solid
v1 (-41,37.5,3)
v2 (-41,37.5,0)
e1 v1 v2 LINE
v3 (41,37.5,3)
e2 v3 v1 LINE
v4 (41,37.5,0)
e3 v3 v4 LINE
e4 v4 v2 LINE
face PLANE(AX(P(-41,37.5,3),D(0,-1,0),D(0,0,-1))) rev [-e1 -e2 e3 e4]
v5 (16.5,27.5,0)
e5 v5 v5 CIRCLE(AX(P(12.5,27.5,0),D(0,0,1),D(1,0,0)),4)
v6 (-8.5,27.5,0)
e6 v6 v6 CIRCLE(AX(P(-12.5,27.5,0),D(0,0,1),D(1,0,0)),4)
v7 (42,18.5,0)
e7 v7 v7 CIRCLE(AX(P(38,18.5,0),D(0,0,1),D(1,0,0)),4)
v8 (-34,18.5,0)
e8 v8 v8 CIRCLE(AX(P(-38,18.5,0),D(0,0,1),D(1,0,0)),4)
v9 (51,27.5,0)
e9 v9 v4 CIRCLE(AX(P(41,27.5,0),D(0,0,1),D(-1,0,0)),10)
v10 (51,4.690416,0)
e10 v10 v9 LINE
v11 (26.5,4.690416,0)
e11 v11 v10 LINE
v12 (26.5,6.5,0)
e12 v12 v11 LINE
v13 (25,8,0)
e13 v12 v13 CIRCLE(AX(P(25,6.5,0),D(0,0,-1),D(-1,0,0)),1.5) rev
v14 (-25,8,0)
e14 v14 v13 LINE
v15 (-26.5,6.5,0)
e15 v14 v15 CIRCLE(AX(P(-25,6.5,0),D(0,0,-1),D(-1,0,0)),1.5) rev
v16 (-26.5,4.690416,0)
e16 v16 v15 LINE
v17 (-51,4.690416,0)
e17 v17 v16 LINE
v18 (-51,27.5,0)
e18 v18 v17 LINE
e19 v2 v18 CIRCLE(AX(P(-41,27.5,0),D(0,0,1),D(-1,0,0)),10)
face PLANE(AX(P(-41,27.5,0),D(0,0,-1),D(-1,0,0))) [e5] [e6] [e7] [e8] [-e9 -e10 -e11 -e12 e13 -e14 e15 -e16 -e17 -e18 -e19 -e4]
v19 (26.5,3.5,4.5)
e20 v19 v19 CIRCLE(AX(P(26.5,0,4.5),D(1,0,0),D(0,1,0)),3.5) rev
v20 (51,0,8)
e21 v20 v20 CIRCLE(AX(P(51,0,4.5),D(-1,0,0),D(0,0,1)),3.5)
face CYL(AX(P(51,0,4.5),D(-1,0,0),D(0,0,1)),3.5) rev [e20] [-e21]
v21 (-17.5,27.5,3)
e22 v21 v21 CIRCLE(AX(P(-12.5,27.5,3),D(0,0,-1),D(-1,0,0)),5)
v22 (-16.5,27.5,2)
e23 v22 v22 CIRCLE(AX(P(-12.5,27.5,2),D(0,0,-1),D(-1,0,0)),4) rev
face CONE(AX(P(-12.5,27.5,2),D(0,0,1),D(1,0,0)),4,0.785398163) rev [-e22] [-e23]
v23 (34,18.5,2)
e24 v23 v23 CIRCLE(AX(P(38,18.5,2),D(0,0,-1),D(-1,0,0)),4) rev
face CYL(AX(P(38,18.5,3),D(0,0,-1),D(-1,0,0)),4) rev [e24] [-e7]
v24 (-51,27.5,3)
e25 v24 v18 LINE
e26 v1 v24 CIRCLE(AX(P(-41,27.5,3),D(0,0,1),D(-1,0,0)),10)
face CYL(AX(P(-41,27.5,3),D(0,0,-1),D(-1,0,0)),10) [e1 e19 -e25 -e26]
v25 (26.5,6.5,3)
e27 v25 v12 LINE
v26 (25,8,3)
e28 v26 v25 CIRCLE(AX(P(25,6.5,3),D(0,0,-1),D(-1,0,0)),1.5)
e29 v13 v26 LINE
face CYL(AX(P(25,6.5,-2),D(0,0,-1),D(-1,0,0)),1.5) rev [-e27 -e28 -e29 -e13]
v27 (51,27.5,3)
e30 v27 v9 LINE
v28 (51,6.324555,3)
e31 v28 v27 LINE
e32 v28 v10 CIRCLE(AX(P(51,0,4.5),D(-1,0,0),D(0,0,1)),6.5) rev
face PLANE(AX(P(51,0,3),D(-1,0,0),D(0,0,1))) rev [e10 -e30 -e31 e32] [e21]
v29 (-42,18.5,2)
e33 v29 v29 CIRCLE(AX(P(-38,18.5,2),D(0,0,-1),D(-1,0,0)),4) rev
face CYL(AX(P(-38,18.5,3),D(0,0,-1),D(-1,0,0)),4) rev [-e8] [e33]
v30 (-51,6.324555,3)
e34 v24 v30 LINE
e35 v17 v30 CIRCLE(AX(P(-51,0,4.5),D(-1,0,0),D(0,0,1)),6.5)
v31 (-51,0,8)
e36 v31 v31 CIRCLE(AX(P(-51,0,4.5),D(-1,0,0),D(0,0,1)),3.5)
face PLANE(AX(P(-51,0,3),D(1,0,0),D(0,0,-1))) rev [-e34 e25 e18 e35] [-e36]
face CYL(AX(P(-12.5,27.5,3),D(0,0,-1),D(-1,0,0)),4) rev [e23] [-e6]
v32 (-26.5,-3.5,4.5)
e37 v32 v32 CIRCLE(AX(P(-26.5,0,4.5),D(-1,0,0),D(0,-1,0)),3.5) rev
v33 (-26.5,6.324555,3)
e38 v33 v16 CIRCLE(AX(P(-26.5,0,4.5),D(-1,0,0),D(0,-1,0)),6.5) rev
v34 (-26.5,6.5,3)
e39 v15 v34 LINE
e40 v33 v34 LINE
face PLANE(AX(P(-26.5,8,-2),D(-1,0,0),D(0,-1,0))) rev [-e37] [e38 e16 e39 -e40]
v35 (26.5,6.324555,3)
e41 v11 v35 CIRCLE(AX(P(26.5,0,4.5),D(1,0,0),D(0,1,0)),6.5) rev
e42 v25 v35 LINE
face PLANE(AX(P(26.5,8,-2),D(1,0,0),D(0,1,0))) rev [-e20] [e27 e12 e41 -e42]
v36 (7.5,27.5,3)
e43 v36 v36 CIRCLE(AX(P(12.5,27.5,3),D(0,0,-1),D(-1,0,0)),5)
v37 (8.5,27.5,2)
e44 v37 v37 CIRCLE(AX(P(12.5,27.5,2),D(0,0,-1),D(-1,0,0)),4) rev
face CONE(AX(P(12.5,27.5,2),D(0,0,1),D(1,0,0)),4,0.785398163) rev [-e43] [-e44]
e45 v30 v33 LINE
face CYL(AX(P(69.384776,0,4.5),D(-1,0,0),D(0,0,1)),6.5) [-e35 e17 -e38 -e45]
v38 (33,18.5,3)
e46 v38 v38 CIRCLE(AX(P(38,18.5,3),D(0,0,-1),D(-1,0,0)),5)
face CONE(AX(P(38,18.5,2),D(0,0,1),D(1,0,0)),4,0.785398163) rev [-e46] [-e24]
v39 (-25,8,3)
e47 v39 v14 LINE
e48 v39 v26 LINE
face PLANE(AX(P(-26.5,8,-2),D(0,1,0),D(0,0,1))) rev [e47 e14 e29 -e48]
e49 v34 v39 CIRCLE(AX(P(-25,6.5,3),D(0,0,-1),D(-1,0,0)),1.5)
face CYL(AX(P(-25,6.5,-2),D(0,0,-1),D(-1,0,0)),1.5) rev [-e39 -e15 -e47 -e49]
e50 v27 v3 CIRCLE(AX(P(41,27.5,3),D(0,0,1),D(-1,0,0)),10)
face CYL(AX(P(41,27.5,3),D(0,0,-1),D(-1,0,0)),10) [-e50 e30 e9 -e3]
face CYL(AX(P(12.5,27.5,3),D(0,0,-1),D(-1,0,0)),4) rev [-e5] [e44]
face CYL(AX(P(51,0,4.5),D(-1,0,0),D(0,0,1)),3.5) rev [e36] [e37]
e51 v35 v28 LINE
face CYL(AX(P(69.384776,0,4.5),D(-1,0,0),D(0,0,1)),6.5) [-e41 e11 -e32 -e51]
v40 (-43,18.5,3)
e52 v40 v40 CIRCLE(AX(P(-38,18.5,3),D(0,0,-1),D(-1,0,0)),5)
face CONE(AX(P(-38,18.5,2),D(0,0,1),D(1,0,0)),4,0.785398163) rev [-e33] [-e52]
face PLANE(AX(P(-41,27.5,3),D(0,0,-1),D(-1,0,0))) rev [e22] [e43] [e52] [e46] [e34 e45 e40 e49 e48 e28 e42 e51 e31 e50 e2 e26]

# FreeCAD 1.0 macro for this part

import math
import FreeCAD as App
import Part
import Sketcher

V = App.Vector
Q = App.Units.Quantity


def edges_at(feature, points):
    """Names of the edges that pass closest to the given points."""
    edges = feature.Shape.Edges
    near = lambda p: min(range(len(edges)), key=lambda i: edges[i].distToShape(Part.Vertex(*p))[0])
    return sorted({f"Edge{near(p) + 1}" for p in points})

doc = App.newDocument("Part")
body = doc.addObject("PartDesign::Body", "Body")

# Sketch on XY plane
sketch1 = doc.addObject("Sketcher::SketchObject", "Sketch")
body.addObject(sketch1)
sketch1.AttachmentSupport = (doc.XY_Plane, [""])
sketch1.MapMode = "FlatFace"
sketch1.addGeometry([
    Part.LineSegment(V(-51, 0, 0), V(51, 0, 0)),  # 0
    Part.LineSegment(V(51, 0, 0), V(51, 27.5, 0)),  # 1
    Part.ArcOfCircle(Part.Circle(V(41, 27.5, 0), V(0, 0, 1), 10), math.radians(0), math.radians(90)),  # 2
    Part.LineSegment(V(41, 37.5, 0), V(-41, 37.5, 0)),  # 3
    Part.ArcOfCircle(Part.Circle(V(-41, 27.5, 0), V(0, 0, 1), 10), math.radians(90), math.radians(180)),  # 4
    Part.LineSegment(V(-51, 27.5, 0), V(-51, 0, 0)),  # 5
    Part.Circle(V(-38, 18.5, 0), V(0, 0, 1), 4),  # 6
    Part.Circle(V(38, 18.5, 0), V(0, 0, 1), 4),  # 7
    Part.Circle(V(-12.5, 27.5, 0), V(0, 0, 1), 4),  # 8
    Part.Circle(V(12.5, 27.5, 0), V(0, 0, 1), 4),  # 9
], False)
sketch1.addConstraint([
    Sketcher.Constraint("Coincident", 0, 2, 1, 1),
    Sketcher.Constraint("Tangent", 1, 2, 2, 1),
    Sketcher.Constraint("Tangent", 2, 2, 3, 1),
    Sketcher.Constraint("Tangent", 3, 2, 4, 1),
    Sketcher.Constraint("Tangent", 4, 2, 5, 1),
    Sketcher.Constraint("Coincident", 5, 2, 0, 1),
    Sketcher.Constraint("Horizontal", 0),
    Sketcher.Constraint("Vertical", 1),
    Sketcher.Constraint("Horizontal", 3),
    Sketcher.Constraint("Vertical", 5),
    Sketcher.Constraint("Equal", 2, 4),
    Sketcher.Constraint("Equal", 6, 7),
    Sketcher.Constraint("Equal", 7, 8),
    Sketcher.Constraint("Equal", 8, 9),
    Sketcher.Constraint("Symmetric", 0, 2, 5, 2, -1, 1),
    Sketcher.Constraint("Symmetric", 6, 3, 7, 3, -2),
    Sketcher.Constraint("Symmetric", 8, 3, 9, 3, -2),
    Sketcher.Constraint("Horizontal", 4, 3, 8, 3),
    Sketcher.Constraint("Diameter", 6, Q("8 mm")),
    Sketcher.Constraint("Radius", 2, Q("10 mm")),
    Sketcher.Constraint("DistanceX", 0, 1, 0, 2, Q("102 mm")),
    Sketcher.Constraint("DistanceY", 1, 1, 1, 2, Q("27.5 mm")),
    Sketcher.Constraint("DistanceX", 6, 3, -1, 1, Q("38 mm")),
    Sketcher.Constraint("DistanceY", 6, 3, 4, 3, Q("9 mm")),
    Sketcher.Constraint("DistanceX", 8, 3, 9, 3, Q("25 mm")),
])
pad1 = doc.addObject("PartDesign::Pad", "Pad")
body.addObject(pad1)
pad1.Profile = sketch1
pad1.Length = 3

# Sketch on YZ plane
sketch2 = doc.addObject("Sketcher::SketchObject", "Sketch001")
body.addObject(sketch2)
sketch2.AttachmentSupport = (doc.YZ_Plane, [""])
sketch2.MapMode = "FlatFace"
sketch2.AttachmentOffset = App.Placement(V(0, 0, -51), App.Rotation())
sketch2.addGeometry(Part.Circle(V(0, 4, 0), V(0, 0, 1), 6), False)
sketch2.addConstraint([
    Sketcher.Constraint("PointOnObject", 0, 3, -2),
    Sketcher.Constraint("Diameter", 0, Q("13 mm")),
    Sketcher.Constraint("DistanceY", -1, 1, 0, 3, Q("4.5 mm")),
])
pad2 = doc.addObject("PartDesign::Pad", "Pad001")
body.addObject(pad2)
pad2.Profile = sketch2
pad2.Length = 102

# Sketch on YZ plane
sketch3 = doc.addObject("Sketcher::SketchObject", "Sketch002")
body.addObject(sketch3)
sketch3.AttachmentSupport = (doc.YZ_Plane, [""])
sketch3.MapMode = "FlatFace"
sketch3.AttachmentOffset = App.Placement(V(0, 0, -51), App.Rotation())
sketch3.addGeometry(Part.Circle(V(0, 4.5, 0), V(0, 0, 1), 3.5), False)
sketch3.addConstraint([
    Sketcher.Constraint("PointOnObject", 0, 3, -2),
    Sketcher.Constraint("Diameter", 0, Q("7 mm")),
    Sketcher.Constraint("DistanceY", -1, 1, 0, 3, Q("4.5 mm")),
])
pocket1 = doc.addObject("PartDesign::Pocket", "Pocket")
body.addObject(pocket1)
pocket1.Profile = sketch3
pocket1.Type = "ThroughAll"
pocket1.Reversed = True

# Sketch on XY plane
sketch4 = doc.addObject("Sketcher::SketchObject", "Sketch003")
body.addObject(sketch4)
sketch4.AttachmentSupport = (doc.XY_Plane, [""])
sketch4.MapMode = "FlatFace"
sketch4.AttachmentOffset = App.Placement(V(0, 0, 3), App.Rotation())
sketch4.addGeometry([
    Part.LineSegment(V(-26, 8, 0), V(-26, -6, 0)),
    Part.LineSegment(V(-26, -6, 0), V(26, -6, 0)),
    Part.LineSegment(V(26, -6, 0), V(26, 8, 0)),
    Part.LineSegment(V(26, 8, 0), V(-26, 8, 0)),
], False)
sketch4.addConstraint([
    Sketcher.Constraint("Coincident", 0, 2, 1, 1),
    Sketcher.Constraint("Coincident", 1, 2, 2, 1),
    Sketcher.Constraint("Coincident", 2, 2, 3, 1),
    Sketcher.Constraint("Coincident", 3, 2, 0, 1),
    Sketcher.Constraint("Vertical", 0),
    Sketcher.Constraint("Horizontal", 1),
    Sketcher.Constraint("Vertical", 2),
    Sketcher.Constraint("Horizontal", 3),
    Sketcher.Constraint("DistanceX", 1, 1, 1, 2, Q("53 mm")),
    Sketcher.Constraint("DistanceY", 0, 2, 0, 1, Q("14.5 mm")),
    Sketcher.Constraint("DistanceY", -1, 1, 2, 2, Q("8 mm")),
    Sketcher.Constraint("DistanceX", 0, 2, -1, 1, Q("26.5 mm")),
])
pocket2 = doc.addObject("PartDesign::Pocket", "Pocket001")
body.addObject(pocket2)
pocket2.Profile = sketch4
pocket2.Type = "ThroughAll"
pocket2.Midplane = True
doc.recompute()

fillet = doc.addObject("PartDesign::Fillet", "Fillet")
body.addObject(fillet)
fillet.Base = (pocket2, edges_at(pocket2, [(-26.5, 8, 1.5), (26.5, 8, 1.5)]))
fillet.Radius = 1.5
doc.recompute()

chamfer = doc.addObject("PartDesign::Chamfer", "Chamfer")
body.addObject(chamfer)
chamfer.Base = (fillet, edges_at(fillet, [
    (-42, 18.5, 3),
    (34, 18.5, 3),
    (-16.5, 27.5, 3),
    (8.5, 27.5, 3),
]))
chamfer.Size = 1

doc.recompute()
